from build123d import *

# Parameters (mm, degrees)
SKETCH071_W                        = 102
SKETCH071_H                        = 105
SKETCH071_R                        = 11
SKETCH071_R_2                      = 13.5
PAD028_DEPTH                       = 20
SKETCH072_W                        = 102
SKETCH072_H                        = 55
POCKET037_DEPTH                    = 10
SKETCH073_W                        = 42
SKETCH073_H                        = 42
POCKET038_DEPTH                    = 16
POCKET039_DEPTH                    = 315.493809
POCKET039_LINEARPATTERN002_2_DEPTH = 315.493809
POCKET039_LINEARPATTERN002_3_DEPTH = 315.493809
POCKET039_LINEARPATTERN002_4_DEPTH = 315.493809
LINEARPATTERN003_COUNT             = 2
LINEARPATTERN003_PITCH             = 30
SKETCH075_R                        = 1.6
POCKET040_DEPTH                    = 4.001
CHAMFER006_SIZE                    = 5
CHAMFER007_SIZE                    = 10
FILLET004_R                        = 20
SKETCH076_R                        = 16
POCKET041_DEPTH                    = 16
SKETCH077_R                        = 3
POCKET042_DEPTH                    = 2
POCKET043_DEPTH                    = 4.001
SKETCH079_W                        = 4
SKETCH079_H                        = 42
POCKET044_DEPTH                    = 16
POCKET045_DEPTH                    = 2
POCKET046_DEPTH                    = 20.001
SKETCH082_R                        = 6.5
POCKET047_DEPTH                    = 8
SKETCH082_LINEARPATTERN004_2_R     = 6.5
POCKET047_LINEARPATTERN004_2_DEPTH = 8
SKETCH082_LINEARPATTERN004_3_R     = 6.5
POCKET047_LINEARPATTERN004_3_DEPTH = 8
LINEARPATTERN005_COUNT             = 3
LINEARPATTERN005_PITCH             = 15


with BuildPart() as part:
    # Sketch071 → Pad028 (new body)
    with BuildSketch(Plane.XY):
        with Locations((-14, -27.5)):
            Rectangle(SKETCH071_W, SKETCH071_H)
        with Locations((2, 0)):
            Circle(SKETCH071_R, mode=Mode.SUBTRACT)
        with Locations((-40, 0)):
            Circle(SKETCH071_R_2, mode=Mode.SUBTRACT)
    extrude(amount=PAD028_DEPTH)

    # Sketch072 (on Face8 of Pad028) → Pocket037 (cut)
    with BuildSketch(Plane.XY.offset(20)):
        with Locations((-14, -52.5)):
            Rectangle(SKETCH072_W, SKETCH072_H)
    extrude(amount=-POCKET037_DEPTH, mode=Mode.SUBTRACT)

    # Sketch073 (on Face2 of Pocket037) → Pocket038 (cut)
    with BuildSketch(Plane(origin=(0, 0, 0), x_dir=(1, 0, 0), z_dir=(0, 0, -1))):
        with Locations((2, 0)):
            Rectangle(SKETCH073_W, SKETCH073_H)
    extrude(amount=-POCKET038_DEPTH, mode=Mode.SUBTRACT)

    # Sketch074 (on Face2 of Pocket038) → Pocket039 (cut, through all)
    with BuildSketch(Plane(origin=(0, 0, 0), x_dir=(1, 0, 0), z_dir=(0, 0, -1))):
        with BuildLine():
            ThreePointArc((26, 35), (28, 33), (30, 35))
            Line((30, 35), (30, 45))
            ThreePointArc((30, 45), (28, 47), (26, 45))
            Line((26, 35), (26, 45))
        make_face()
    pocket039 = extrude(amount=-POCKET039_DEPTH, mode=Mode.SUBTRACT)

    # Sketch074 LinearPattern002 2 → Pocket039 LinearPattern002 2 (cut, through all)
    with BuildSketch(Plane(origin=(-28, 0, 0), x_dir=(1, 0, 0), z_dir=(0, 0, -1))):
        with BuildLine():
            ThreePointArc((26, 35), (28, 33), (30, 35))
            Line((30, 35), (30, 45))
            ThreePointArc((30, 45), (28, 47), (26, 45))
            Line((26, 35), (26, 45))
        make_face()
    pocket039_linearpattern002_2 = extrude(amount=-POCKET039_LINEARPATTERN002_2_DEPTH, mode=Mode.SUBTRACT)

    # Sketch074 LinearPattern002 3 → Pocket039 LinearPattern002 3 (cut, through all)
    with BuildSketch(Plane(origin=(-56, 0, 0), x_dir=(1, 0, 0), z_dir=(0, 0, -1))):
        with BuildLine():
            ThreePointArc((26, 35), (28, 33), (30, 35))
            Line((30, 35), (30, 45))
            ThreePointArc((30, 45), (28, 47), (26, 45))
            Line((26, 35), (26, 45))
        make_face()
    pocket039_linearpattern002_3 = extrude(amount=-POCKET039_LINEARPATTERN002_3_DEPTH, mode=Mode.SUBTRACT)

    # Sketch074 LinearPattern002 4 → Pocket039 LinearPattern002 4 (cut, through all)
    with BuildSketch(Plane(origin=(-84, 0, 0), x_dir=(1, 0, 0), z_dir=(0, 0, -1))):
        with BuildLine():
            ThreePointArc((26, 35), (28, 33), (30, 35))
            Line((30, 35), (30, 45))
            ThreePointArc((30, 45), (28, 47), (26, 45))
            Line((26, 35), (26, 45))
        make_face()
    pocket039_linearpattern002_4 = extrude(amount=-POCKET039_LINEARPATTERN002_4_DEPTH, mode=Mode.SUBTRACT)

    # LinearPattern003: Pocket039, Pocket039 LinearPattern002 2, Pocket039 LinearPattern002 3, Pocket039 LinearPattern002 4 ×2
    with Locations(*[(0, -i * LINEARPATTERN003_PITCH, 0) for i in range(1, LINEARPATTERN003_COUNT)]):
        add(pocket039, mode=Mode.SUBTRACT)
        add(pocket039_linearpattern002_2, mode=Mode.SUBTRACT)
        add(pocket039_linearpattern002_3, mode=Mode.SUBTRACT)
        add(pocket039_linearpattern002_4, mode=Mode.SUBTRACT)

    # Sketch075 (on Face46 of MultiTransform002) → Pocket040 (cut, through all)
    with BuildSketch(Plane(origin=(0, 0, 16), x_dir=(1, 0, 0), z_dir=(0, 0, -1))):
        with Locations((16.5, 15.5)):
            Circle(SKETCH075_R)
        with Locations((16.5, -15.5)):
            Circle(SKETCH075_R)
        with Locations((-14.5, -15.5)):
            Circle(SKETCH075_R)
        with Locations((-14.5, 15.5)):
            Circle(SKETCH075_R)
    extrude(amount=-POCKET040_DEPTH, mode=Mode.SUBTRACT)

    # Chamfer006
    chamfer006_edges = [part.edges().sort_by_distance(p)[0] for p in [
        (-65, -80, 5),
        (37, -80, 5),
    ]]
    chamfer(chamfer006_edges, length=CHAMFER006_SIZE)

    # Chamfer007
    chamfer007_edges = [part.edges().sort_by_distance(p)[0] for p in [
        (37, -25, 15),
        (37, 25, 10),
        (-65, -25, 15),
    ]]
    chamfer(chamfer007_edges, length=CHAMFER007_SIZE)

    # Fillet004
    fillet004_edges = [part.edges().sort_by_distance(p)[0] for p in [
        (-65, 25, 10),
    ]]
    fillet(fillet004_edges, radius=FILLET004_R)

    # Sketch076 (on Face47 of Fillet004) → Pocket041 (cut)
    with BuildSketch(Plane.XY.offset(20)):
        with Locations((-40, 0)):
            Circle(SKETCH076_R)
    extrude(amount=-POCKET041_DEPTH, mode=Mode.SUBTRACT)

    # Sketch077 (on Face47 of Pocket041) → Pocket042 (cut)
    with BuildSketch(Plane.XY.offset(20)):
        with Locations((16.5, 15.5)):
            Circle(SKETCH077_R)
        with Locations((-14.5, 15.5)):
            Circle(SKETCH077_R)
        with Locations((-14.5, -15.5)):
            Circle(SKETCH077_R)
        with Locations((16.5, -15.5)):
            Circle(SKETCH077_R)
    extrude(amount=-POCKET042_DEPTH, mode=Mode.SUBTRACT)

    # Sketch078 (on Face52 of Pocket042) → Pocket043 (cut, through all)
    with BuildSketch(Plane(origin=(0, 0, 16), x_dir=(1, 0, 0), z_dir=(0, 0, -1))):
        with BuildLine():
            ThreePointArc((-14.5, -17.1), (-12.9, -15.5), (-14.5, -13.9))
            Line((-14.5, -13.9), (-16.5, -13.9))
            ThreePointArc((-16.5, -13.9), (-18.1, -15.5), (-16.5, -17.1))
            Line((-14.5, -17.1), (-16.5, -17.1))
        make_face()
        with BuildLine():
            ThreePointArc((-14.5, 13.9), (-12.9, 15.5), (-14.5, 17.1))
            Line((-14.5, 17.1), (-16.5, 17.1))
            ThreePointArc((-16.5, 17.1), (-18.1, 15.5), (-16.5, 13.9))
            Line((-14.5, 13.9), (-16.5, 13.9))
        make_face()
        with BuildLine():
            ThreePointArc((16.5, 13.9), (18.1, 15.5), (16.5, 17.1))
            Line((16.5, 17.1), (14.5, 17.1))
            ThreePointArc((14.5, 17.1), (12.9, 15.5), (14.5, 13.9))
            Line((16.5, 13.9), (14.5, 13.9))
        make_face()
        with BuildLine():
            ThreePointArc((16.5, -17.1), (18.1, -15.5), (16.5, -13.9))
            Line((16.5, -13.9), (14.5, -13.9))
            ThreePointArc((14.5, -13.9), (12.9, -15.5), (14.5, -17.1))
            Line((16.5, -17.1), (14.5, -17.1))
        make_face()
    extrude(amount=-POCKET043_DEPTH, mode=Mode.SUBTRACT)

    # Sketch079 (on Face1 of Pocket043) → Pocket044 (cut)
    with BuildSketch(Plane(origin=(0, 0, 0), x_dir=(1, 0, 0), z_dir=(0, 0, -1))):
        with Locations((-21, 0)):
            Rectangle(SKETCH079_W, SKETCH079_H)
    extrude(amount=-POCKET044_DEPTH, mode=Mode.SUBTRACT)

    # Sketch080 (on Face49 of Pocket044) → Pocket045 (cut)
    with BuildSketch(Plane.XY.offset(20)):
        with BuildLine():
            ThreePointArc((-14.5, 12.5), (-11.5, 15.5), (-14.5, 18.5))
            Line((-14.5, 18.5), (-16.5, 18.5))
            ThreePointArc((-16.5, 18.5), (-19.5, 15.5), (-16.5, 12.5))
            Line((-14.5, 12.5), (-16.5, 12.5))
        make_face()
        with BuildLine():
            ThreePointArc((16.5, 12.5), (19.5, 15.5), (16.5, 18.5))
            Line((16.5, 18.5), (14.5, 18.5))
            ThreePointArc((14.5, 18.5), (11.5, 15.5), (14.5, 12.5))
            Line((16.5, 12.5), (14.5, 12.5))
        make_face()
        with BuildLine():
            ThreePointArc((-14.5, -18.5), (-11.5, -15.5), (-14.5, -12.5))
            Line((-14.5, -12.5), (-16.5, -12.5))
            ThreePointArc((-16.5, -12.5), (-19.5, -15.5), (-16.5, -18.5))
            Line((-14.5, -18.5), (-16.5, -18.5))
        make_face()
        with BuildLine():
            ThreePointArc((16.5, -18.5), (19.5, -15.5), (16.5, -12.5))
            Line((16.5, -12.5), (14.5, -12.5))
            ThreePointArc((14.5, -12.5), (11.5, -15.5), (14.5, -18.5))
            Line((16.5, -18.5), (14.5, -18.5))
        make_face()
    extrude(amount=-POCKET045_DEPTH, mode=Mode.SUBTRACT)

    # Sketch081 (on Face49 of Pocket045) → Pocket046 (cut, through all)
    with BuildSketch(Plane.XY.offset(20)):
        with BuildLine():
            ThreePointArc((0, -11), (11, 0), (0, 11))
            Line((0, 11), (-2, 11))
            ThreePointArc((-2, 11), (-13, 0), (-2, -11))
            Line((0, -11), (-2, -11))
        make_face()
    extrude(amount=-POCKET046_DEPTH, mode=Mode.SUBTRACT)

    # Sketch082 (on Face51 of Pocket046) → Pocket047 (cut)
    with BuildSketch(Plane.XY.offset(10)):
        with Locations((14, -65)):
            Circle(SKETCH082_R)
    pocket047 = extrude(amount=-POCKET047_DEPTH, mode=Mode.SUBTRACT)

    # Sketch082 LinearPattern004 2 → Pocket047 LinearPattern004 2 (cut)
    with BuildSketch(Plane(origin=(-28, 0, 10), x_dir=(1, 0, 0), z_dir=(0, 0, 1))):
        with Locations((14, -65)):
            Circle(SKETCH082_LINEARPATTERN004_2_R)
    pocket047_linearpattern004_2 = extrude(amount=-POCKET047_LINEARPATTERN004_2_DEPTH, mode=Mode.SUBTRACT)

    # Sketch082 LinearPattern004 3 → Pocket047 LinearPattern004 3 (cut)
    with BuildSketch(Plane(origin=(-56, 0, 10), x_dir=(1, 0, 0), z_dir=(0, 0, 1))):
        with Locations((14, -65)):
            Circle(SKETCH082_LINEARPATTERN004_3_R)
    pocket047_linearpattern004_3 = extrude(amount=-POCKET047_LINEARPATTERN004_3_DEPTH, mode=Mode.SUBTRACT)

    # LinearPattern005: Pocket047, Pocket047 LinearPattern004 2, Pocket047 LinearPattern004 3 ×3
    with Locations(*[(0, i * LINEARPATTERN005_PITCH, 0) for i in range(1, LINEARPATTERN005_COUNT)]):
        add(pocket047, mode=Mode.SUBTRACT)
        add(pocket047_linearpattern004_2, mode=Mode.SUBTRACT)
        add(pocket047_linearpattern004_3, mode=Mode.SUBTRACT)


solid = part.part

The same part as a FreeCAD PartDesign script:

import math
import FreeCAD as App
import Part
import Sketcher
from FreeCAD import Vector
Q = App.Units.Quantity


def edges_at(feature, points):
    """Names of the edges that pass closest to the given points."""
    edges = feature.Shape.Edges
    near = lambda p: min(range(len(edges)), key=lambda i: edges[i].distToShape(Part.Vertex(*p))[0])
    return sorted({f"Edge{near(p) + 1}" for p in points})

doc = App.newDocument("Part")
body = doc.addObject("PartDesign::Body", "Body")

sketch1 = body.newObject("Sketcher::SketchObject", "Sketch")
sketch1.AttachmentSupport = (doc.getObject("XY_Plane"), [""])
sketch1.MapMode = "FlatFace"
sketch1.addGeometry(Part.LineSegment(Vector(-65, 25, 0), Vector(-65, -80, 0)), False)
sketch1.addGeometry(Part.LineSegment(Vector(-65, -80, 0), Vector(37, -80, 0)), False)
sketch1.addGeometry(Part.LineSegment(Vector(37, -80, 0), Vector(37, 25, 0)), False)
sketch1.addGeometry(Part.LineSegment(Vector(37, 25, 0), Vector(-65, 25, 0)), False)
sketch1.addGeometry(Part.Circle(Vector(-40, 0, 0), Vector(0, 0, 1), 13.5), False)
sketch1.addGeometry(Part.Circle(Vector(2, 0, 0), Vector(0, 0, 1), 11), False)
sketch1.addConstraint(Sketcher.Constraint("Coincident", 0, 2, 1, 1))
sketch1.addConstraint(Sketcher.Constraint("Coincident", 1, 2, 2, 1))
sketch1.addConstraint(Sketcher.Constraint("Coincident", 2, 2, 3, 1))
sketch1.addConstraint(Sketcher.Constraint("Coincident", 3, 2, 0, 1))
sketch1.addConstraint(Sketcher.Constraint("Vertical", 0))
sketch1.addConstraint(Sketcher.Constraint("Horizontal", 1))
sketch1.addConstraint(Sketcher.Constraint("Vertical", 2))
sketch1.addConstraint(Sketcher.Constraint("Horizontal", 3))
sketch1.addConstraint(Sketcher.Constraint("PointOnObject", 4, 3, -1))
sketch1.addConstraint(Sketcher.Constraint("PointOnObject", 5, 3, -1))
sketch1.addConstraint(Sketcher.Constraint("Diameter", 4, Q("27 mm")))
sketch1.addConstraint(Sketcher.Constraint("Diameter", 5, Q("22 mm")))
sketch1.addConstraint(Sketcher.Constraint("DistanceX", 1, 1, 1, 2, Q("102 mm")))
sketch1.addConstraint(Sketcher.Constraint("DistanceY", 0, 2, 0, 1, Q("105 mm")))
sketch1.addConstraint(Sketcher.Constraint("DistanceX", 4, 3, -1, 1, Q("40 mm")))
sketch1.addConstraint(Sketcher.Constraint("DistanceX", -1, 1, 5, 3, Q("2 mm")))
sketch1.addConstraint(Sketcher.Constraint("DistanceX", 0, 2, -1, 1, Q("65 mm")))
sketch1.addConstraint(Sketcher.Constraint("DistanceY", 0, 2, -1, 1, Q("80 mm")))
pad1 = body.newObject("PartDesign::Pad", "Pad")
pad1.Profile = sketch1
pad1.Length = 20

sketch2 = body.newObject("Sketcher::SketchObject", "Sketch001")
sketch2.AttachmentSupport = (doc.getObject("XY_Plane"), [""])
sketch2.MapMode = "FlatFace"
sketch2.AttachmentOffset = App.Placement(Vector(0, 0, 20), App.Rotation())
sketch2.addGeometry(Part.LineSegment(Vector(-65, -25, 0), Vector(-65, -80, 0)), False)
sketch2.addGeometry(Part.LineSegment(Vector(-65, -80, 0), Vector(37, -80, 0)), False)
sketch2.addGeometry(Part.LineSegment(Vector(37, -80, 0), Vector(37, -25, 0)), False)
sketch2.addGeometry(Part.LineSegment(Vector(37, -25, 0), Vector(-65, -25, 0)), False)
sketch2.addConstraint(Sketcher.Constraint("Coincident", 0, 2, 1, 1))
sketch2.addConstraint(Sketcher.Constraint("Coincident", 1, 2, 2, 1))
sketch2.addConstraint(Sketcher.Constraint("Coincident", 2, 2, 3, 1))
sketch2.addConstraint(Sketcher.Constraint("Coincident", 3, 2, 0, 1))
sketch2.addConstraint(Sketcher.Constraint("Vertical", 0))
sketch2.addConstraint(Sketcher.Constraint("Horizontal", 1))
sketch2.addConstraint(Sketcher.Constraint("Vertical", 2))
sketch2.addConstraint(Sketcher.Constraint("Horizontal", 3))
sketch2.addConstraint(Sketcher.Constraint("DistanceX", 1, 1, 1, 2, Q("102 mm")))
sketch2.addConstraint(Sketcher.Constraint("DistanceY", 0, 2, 0, 1, Q("55 mm")))
sketch2.addConstraint(Sketcher.Constraint("DistanceX", 0, 2, -1, 1, Q("65 mm")))
sketch2.addConstraint(Sketcher.Constraint("DistanceY", 0, 2, -1, 1, Q("80 mm")))
pocket1 = body.newObject("PartDesign::Pocket", "Pocket")
pocket1.Profile = sketch2
pocket1.Length = 10

sketch3 = body.newObject("Sketcher::SketchObject", "Sketch002")
sketch3.AttachmentSupport = (doc.getObject("XY_Plane"), [""])
sketch3.MapMode = "FlatFace"
sketch3.addGeometry(Part.LineSegment(Vector(-19, -21, 0), Vector(-19, 21, 0)), False)
sketch3.addGeometry(Part.LineSegment(Vector(-19, 21, 0), Vector(23, 21, 0)), False)
sketch3.addGeometry(Part.LineSegment(Vector(23, 21, 0), Vector(23, -21, 0)), False)
sketch3.addGeometry(Part.LineSegment(Vector(23, -21, 0), Vector(-19, -21, 0)), False)
sketch3.addConstraint(Sketcher.Constraint("Coincident", 0, 2, 1, 1))
sketch3.addConstraint(Sketcher.Constraint("Coincident", 1, 2, 2, 1))
sketch3.addConstraint(Sketcher.Constraint("Coincident", 2, 2, 3, 1))
sketch3.addConstraint(Sketcher.Constraint("Coincident", 3, 2, 0, 1))
sketch3.addConstraint(Sketcher.Constraint("Vertical", 0))
sketch3.addConstraint(Sketcher.Constraint("Horizontal", 1))
sketch3.addConstraint(Sketcher.Constraint("Vertical", 2))
sketch3.addConstraint(Sketcher.Constraint("Horizontal", 3))
sketch3.addConstraint(Sketcher.Constraint("Equal", 3, 0))
sketch3.addConstraint(Sketcher.Constraint("DistanceX", 1, 1, 1, 2, Q("42 mm")))
sketch3.addConstraint(Sketcher.Constraint("DistanceX", 0, 2, -1, 1, Q("19 mm")))
sketch3.addConstraint(Sketcher.Constraint("DistanceY", -1, 1, 0, 2, Q("21 mm")))
pocket2 = body.newObject("PartDesign::Pocket", "Pocket001")
pocket2.Profile = sketch3
pocket2.Length = 16
pocket2.Reversed = True

sketch4 = body.newObject("Sketcher::SketchObject", "Sketch003")
sketch4.AttachmentSupport = (doc.getObject("XY_Plane"), [""])
sketch4.MapMode = "FlatFace"
sketch4.addGeometry(Part.ArcOfCircle(Part.Circle(Vector(28, -35, 0), Vector(0, 0, 1), 2), math.radians(0), math.radians(180)), False)
sketch4.addGeometry(Part.LineSegment(Vector(30, -35, 0), Vector(30, -45, 0)), False)
sketch4.addGeometry(Part.ArcOfCircle(Part.Circle(Vector(28, -45, 0), Vector(0, 0, 1), 2), math.radians(180), math.radians(360)), False)
sketch4.addGeometry(Part.LineSegment(Vector(26, -45, 0), Vector(26, -35, 0)), False)
sketch4.addConstraint(Sketcher.Constraint("Tangent", 0, 1, 1, 1))
sketch4.addConstraint(Sketcher.Constraint("Tangent", 1, 2, 2, 2))
sketch4.addConstraint(Sketcher.Constraint("Tangent", 2, 1, 3, 1))
sketch4.addConstraint(Sketcher.Constraint("Tangent", 3, 2, 0, 2))
sketch4.addConstraint(Sketcher.Constraint("Vertical", 1))
sketch4.addConstraint(Sketcher.Constraint("Vertical", 3))
sketch4.addConstraint(Sketcher.Constraint("Radius", 0, Q("2 mm")))
sketch4.addConstraint(Sketcher.Constraint("DistanceY", 1, 2, 1, 1, Q("10 mm")))
sketch4.addConstraint(Sketcher.Constraint("DistanceX", -1, 1, 0, 3, Q("28 mm")))
sketch4.addConstraint(Sketcher.Constraint("DistanceY", 0, 3, -1, 1, Q("35 mm")))
pocket3 = body.newObject("PartDesign::Pocket", "Pocket002")
pocket3.Profile = sketch4
pocket3.Type = "ThroughAll"
pocket3.Reversed = True

sketch5 = body.newObject("Sketcher::SketchObject", "Sketch004")
sketch5.AttachmentSupport = (doc.getObject("XY_Plane"), [""])
sketch5.MapMode = "FlatFace"
sketch5.addGeometry(Part.ArcOfCircle(Part.Circle(Vector(0, -35, 0), Vector(0, 0, 1), 2), math.radians(0), math.radians(180)), False)
sketch5.addGeometry(Part.LineSegment(Vector(2, -35, 0), Vector(2, -45, 0)), False)
sketch5.addGeometry(Part.ArcOfCircle(Part.Circle(Vector(0, -45, 0), Vector(0, 0, 1), 2), math.radians(180), math.radians(360)), False)
sketch5.addGeometry(Part.LineSegment(Vector(-2, -45, 0), Vector(-2, -35, 0)), False)
sketch5.addConstraint(Sketcher.Constraint("Tangent", 0, 1, 1, 1))
sketch5.addConstraint(Sketcher.Constraint("Tangent", 1, 2, 2, 2))
sketch5.addConstraint(Sketcher.Constraint("Tangent", 2, 1, 3, 1))
sketch5.addConstraint(Sketcher.Constraint("Tangent", 3, 2, 0, 2))
sketch5.addConstraint(Sketcher.Constraint("Vertical", 1))
sketch5.addConstraint(Sketcher.Constraint("Vertical", 3))
sketch5.addConstraint(Sketcher.Constraint("PointOnObject", 0, 3, -2))
sketch5.addConstraint(Sketcher.Constraint("Radius", 0, Q("2 mm")))
sketch5.addConstraint(Sketcher.Constraint("DistanceY", 1, 2, 1, 1, Q("10 mm")))
sketch5.addConstraint(Sketcher.Constraint("DistanceY", 0, 3, -1, 1, Q("35 mm")))
pocket4 = body.newObject("PartDesign::Pocket", "Pocket003")
pocket4.Profile = sketch5
pocket4.Type = "ThroughAll"
pocket4.Reversed = True

sketch6 = body.newObject("Sketcher::SketchObject", "Sketch005")
sketch6.AttachmentSupport = (doc.getObject("XY_Plane"), [""])
sketch6.MapMode = "FlatFace"
sketch6.addGeometry(Part.ArcOfCircle(Part.Circle(Vector(-28, -35, 0), Vector(0, 0, 1), 2), math.radians(0), math.radians(180)), False)
sketch6.addGeometry(Part.LineSegment(Vector(-26, -35, 0), Vector(-26, -45, 0)), False)
sketch6.addGeometry(Part.ArcOfCircle(Part.Circle(Vector(-28, -45, 0), Vector(0, 0, 1), 2), math.radians(180), math.radians(360)), False)
sketch6.addGeometry(Part.LineSegment(Vector(-30, -45, 0), Vector(-30, -35, 0)), False)
sketch6.addConstraint(Sketcher.Constraint("Tangent", 0, 1, 1, 1))
sketch6.addConstraint(Sketcher.Constraint("Tangent", 1, 2, 2, 2))
sketch6.addConstraint(Sketcher.Constraint("Tangent", 2, 1, 3, 1))
sketch6.addConstraint(Sketcher.Constraint("Tangent", 3, 2, 0, 2))
sketch6.addConstraint(Sketcher.Constraint("Vertical", 1))
sketch6.addConstraint(Sketcher.Constraint("Vertical", 3))
sketch6.addConstraint(Sketcher.Constraint("Radius", 0, Q("2 mm")))
sketch6.addConstraint(Sketcher.Constraint("DistanceY", 1, 2, 1, 1, Q("10 mm")))
sketch6.addConstraint(Sketcher.Constraint("DistanceX", 0, 3, -1, 1, Q("28 mm")))
sketch6.addConstraint(Sketcher.Constraint("DistanceY", 0, 3, -1, 1, Q("35 mm")))
pocket5 = body.newObject("PartDesign::Pocket", "Pocket004")
pocket5.Profile = sketch6
pocket5.Type = "ThroughAll"
pocket5.Reversed = True

sketch7 = body.newObject("Sketcher::SketchObject", "Sketch006")
sketch7.AttachmentSupport = (doc.getObject("XY_Plane"), [""])
sketch7.MapMode = "FlatFace"
sketch7.addGeometry(Part.ArcOfCircle(Part.Circle(Vector(-56, -35, 0), Vector(0, 0, 1), 2), math.radians(0), math.radians(180)), False)
sketch7.addGeometry(Part.LineSegment(Vector(-54, -35, 0), Vector(-54, -45, 0)), False)
sketch7.addGeometry(Part.ArcOfCircle(Part.Circle(Vector(-56, -45, 0), Vector(0, 0, 1), 2), math.radians(180), math.radians(360)), False)
sketch7.addGeometry(Part.LineSegment(Vector(-58, -45, 0), Vector(-58, -35, 0)), False)
sketch7.addConstraint(Sketcher.Constraint("Tangent", 0, 1, 1, 1))
sketch7.addConstraint(Sketcher.Constraint("Tangent", 1, 2, 2, 2))
sketch7.addConstraint(Sketcher.Constraint("Tangent", 2, 1, 3, 1))
sketch7.addConstraint(Sketcher.Constraint("Tangent", 3, 2, 0, 2))
sketch7.addConstraint(Sketcher.Constraint("Vertical", 1))
sketch7.addConstraint(Sketcher.Constraint("Vertical", 3))
sketch7.addConstraint(Sketcher.Constraint("Radius", 0, Q("2 mm")))
sketch7.addConstraint(Sketcher.Constraint("DistanceY", 1, 2, 1, 1, Q("10 mm")))
sketch7.addConstraint(Sketcher.Constraint("DistanceX", 0, 3, -1, 1, Q("56 mm")))
sketch7.addConstraint(Sketcher.Constraint("DistanceY", 0, 3, -1, 1, Q("35 mm")))
pocket6 = body.newObject("PartDesign::Pocket", "Pocket005")
pocket6.Profile = sketch7
pocket6.Type = "ThroughAll"
pocket6.Reversed = True
doc.recompute()

linearpattern = body.newObject("PartDesign::LinearPattern", "LinearPattern")
linearpattern.Originals = [pocket3, pocket4, pocket5, pocket6]
linearpattern.Direction = (doc.getObject("Y_Axis"), [""])
linearpattern.Mode = "offset"
linearpattern.Offset = 30
linearpattern.Occurrences = 2
linearpattern.Reversed = True
body.Tip = linearpattern

sketch8 = body.newObject("Sketcher::SketchObject", "Sketch007")
sketch8.AttachmentSupport = (doc.getObject("XY_Plane"), [""])
sketch8.MapMode = "FlatFace"
sketch8.AttachmentOffset = App.Placement(Vector(0, 0, 16), App.Rotation())
sketch8.addGeometry(Part.Circle(Vector(16.5, -15.5, 0), Vector(0, 0, 1), 1.6), False)
sketch8.addGeometry(Part.Circle(Vector(16.5, 15.5, 0), Vector(0, 0, 1), 1.6), False)
sketch8.addGeometry(Part.Circle(Vector(-14.5, 15.5, 0), Vector(0, 0, 1), 1.6), False)
sketch8.addGeometry(Part.Circle(Vector(-14.5, -15.5, 0), Vector(0, 0, 1), 1.6), False)
sketch8.addConstraint(Sketcher.Constraint("Equal", 0, 1))
sketch8.addConstraint(Sketcher.Constraint("Equal", 1, 2))
sketch8.addConstraint(Sketcher.Constraint("Equal", 2, 3))
sketch8.addConstraint(Sketcher.Constraint("Symmetric", 0, 3, 1, 3, -1))
sketch8.addConstraint(Sketcher.Constraint("Symmetric", 2, 3, 3, 3, -1))
sketch8.addConstraint(Sketcher.Constraint("Horizontal", 1, 3, 2, 3))
sketch8.addConstraint(Sketcher.Constraint("Diameter", 0, Q("3.2 mm")))
sketch8.addConstraint(Sketcher.Constraint("DistanceY", 0, 3, 1, 3, Q("31 mm")))
sketch8.addConstraint(Sketcher.Constraint("DistanceX", 2, 3, 1, 3, Q("31 mm")))
sketch8.addConstraint(Sketcher.Constraint("DistanceX", -1, 1, 0, 3, Q("16.5 mm")))
pocket7 = body.newObject("PartDesign::Pocket", "Pocket006")
pocket7.Profile = sketch8
pocket7.Type = "ThroughAll"
pocket7.Reversed = True
doc.recompute()

chamfer = body.newObject("PartDesign::Chamfer", "Chamfer")
chamfer.Base = (pocket7, edges_at(pocket7, [(-65, -80, 5), (37, -80, 5)]))
chamfer.Size = 5
doc.recompute()

chamfer2 = body.newObject("PartDesign::Chamfer", "Chamfer001")
chamfer2.Base = (chamfer, edges_at(chamfer, [(37, -25, 15), (37, 25, 10), (-65, -25, 15)]))
chamfer2.Size = 10
doc.recompute()

fillet = body.newObject("PartDesign::Fillet", "Fillet")
fillet.Base = (chamfer2, edges_at(chamfer2, [(-65, 25, 10)]))
fillet.Radius = 20

sketch9 = body.newObject("Sketcher::SketchObject", "Sketch008")
sketch9.AttachmentSupport = (doc.getObject("XY_Plane"), [""])
sketch9.MapMode = "FlatFace"
sketch9.AttachmentOffset = App.Placement(Vector(0, 0, 20), App.Rotation())
sketch9.addGeometry(Part.Circle(Vector(-40, 0, 0), Vector(0, 0, 1), 16), False)
sketch9.addConstraint(Sketcher.Constraint("PointOnObject", 0, 3, -1))
sketch9.addConstraint(Sketcher.Constraint("Diameter", 0, Q("32 mm")))
sketch9.addConstraint(Sketcher.Constraint("DistanceX", 0, 3, -1, 1, Q("40 mm")))
pocket8 = body.newObject("PartDesign::Pocket", "Pocket007")
pocket8.Profile = sketch9
pocket8.Length = 16

sketch10 = body.newObject("Sketcher::SketchObject", "Sketch009")
sketch10.AttachmentSupport = (doc.getObject("XY_Plane"), [""])
sketch10.MapMode = "FlatFace"
sketch10.AttachmentOffset = App.Placement(Vector(0, 0, 20), App.Rotation())
sketch10.addGeometry(Part.Circle(Vector(16.5, 15.5, 0), Vector(0, 0, 1), 3), False)
sketch10.addGeometry(Part.Circle(Vector(-14.5, 15.5, 0), Vector(0, 0, 1), 3), False)
sketch10.addGeometry(Part.Circle(Vector(-14.5, -15.5, 0), Vector(0, 0, 1), 3), False)
sketch10.addGeometry(Part.Circle(Vector(16.5, -15.5, 0), Vector(0, 0, 1), 3), False)
sketch10.addConstraint(Sketcher.Constraint("Equal", 0, 1))
sketch10.addConstraint(Sketcher.Constraint("Equal", 1, 2))
sketch10.addConstraint(Sketcher.Constraint("Equal", 2, 3))
sketch10.addConstraint(Sketcher.Constraint("Symmetric", 1, 3, 2, 3, -1))
sketch10.addConstraint(Sketcher.Constraint("Symmetric", 0, 3, 3, 3, -1))
sketch10.addConstraint(Sketcher.Constraint("Horizontal", 0, 3, 1, 3))
sketch10.addConstraint(Sketcher.Constraint("Diameter", 0, Q("6 mm")))
sketch10.addConstraint(Sketcher.Constraint("DistanceX", 1, 3, 0, 3, Q("31 mm")))
sketch10.addConstraint(Sketcher.Constraint("DistanceY", 2, 3, 1, 3, Q("31 mm")))
sketch10.addConstraint(Sketcher.Constraint("DistanceX", -1, 1, 0, 3, Q("16.5 mm")))
pocket9 = body.newObject("PartDesign::Pocket", "Pocket008")
pocket9.Profile = sketch10
pocket9.Length = 2

sketch11 = body.newObject("Sketcher::SketchObject", "Sketch010")
sketch11.AttachmentSupport = (doc.getObject("XY_Plane"), [""])
sketch11.MapMode = "FlatFace"
sketch11.AttachmentOffset = App.Placement(Vector(0, 0, 16), App.Rotation())
sketch11.addGeometry(Part.ArcOfCircle(Part.Circle(Vector(-14.5, 15.5, 0), Vector(0, 0, 1), 1.6), math.radians(-90), math.radians(90)), False)
sketch11.addGeometry(Part.LineSegment(Vector(-14.5, 13.9, 0), Vector(-16.5, 13.9, 0)), False)
sketch11.addGeometry(Part.ArcOfCircle(Part.Circle(Vector(-16.5, 15.5, 0), Vector(0, 0, 1), 1.6), math.radians(90), math.radians(270)), False)
sketch11.addGeometry(Part.LineSegment(Vector(-16.5, 17.1, 0), Vector(-14.5, 17.1, 0)), False)
sketch11.addGeometry(Part.ArcOfCircle(Part.Circle(Vector(-14.5, -15.5, 0), Vector(0, 0, 1), 1.6), math.radians(-90), math.radians(90)), False)
sketch11.addGeometry(Part.LineSegment(Vector(-14.5, -17.1, 0), Vector(-16.5, -17.1, 0)), False)
sketch11.addGeometry(Part.ArcOfCircle(Part.Circle(Vector(-16.5, -15.5, 0), Vector(0, 0, 1), 1.6), math.radians(90), math.radians(270)), False)
sketch11.addGeometry(Part.LineSegment(Vector(-16.5, -13.9, 0), Vector(-14.5, -13.9, 0)), False)
sketch11.addGeometry(Part.ArcOfCircle(Part.Circle(Vector(16.5, -15.5, 0), Vector(0, 0, 1), 1.6), math.radians(-90), math.radians(90)), False)
sketch11.addGeometry(Part.LineSegment(Vector(16.5, -17.1, 0), Vector(14.5, -17.1, 0)), False)
sketch11.addGeometry(Part.ArcOfCircle(Part.Circle(Vector(14.5, -15.5, 0), Vector(0, 0, 1), 1.6), math.radians(90), math.radians(270)), False)
sketch11.addGeometry(Part.LineSegment(Vector(14.5, -13.9, 0), Vector(16.5, -13.9, 0)), False)
sketch11.addGeometry(Part.ArcOfCircle(Part.Circle(Vector(16.5, 15.5, 0), Vector(0, 0, 1), 1.6), math.radians(-90), math.radians(90)), False)
sketch11.addGeometry(Part.LineSegment(Vector(16.5, 13.9, 0), Vector(14.5, 13.9, 0)), False)
sketch11.addGeometry(Part.ArcOfCircle(Part.Circle(Vector(14.5, 15.5, 0), Vector(0, 0, 1), 1.6), math.radians(90), math.radians(270)), False)
sketch11.addGeometry(Part.LineSegment(Vector(14.5, 17.1, 0), Vector(16.5, 17.1, 0)), False)
sketch11.addConstraint(Sketcher.Constraint("Tangent", 0, 1, 1, 1))
sketch11.addConstraint(Sketcher.Constraint("Tangent", 1, 2, 2, 2))
sketch11.addConstraint(Sketcher.Constraint("Tangent", 2, 1, 3, 1))
sketch11.addConstraint(Sketcher.Constraint("Tangent", 3, 2, 0, 2))
sketch11.addConstraint(Sketcher.Constraint("Tangent", 4, 1, 5, 1))
sketch11.addConstraint(Sketcher.Constraint("Tangent", 5, 2, 6, 2))
sketch11.addConstraint(Sketcher.Constraint("Tangent", 6, 1, 7, 1))
sketch11.addConstraint(Sketcher.Constraint("Tangent", 7, 2, 4, 2))
sketch11.addConstraint(Sketcher.Constraint("Tangent", 8, 1, 9, 1))
sketch11.addConstraint(Sketcher.Constraint("Tangent", 9, 2, 10, 2))
sketch11.addConstraint(Sketcher.Constraint("Tangent", 10, 1, 11, 1))
sketch11.addConstraint(Sketcher.Constraint("Tangent", 11, 2, 8, 2))
sketch11.addConstraint(Sketcher.Constraint("Tangent", 12, 1, 13, 1))
sketch11.addConstraint(Sketcher.Constraint("Tangent", 13, 2, 14, 2))
sketch11.addConstraint(Sketcher.Constraint("Tangent", 14, 1, 15, 1))
sketch11.addConstraint(Sketcher.Constraint("Tangent", 15, 2, 12, 2))
sketch11.addConstraint(Sketcher.Constraint("Horizontal", 1))
sketch11.addConstraint(Sketcher.Constraint("Horizontal", 3))
sketch11.addConstraint(Sketcher.Constraint("Horizontal", 5))
sketch11.addConstraint(Sketcher.Constraint("Horizontal", 7))
sketch11.addConstraint(Sketcher.Constraint("Horizontal", 9))
sketch11.addConstraint(Sketcher.Constraint("Horizontal", 11))
sketch11.addConstraint(Sketcher.Constraint("Horizontal", 13))
sketch11.addConstraint(Sketcher.Constraint("Horizontal", 15))
sketch11.addConstraint(Sketcher.Constraint("Equal", 2, 4))
sketch11.addConstraint(Sketcher.Constraint("Equal", 6, 8))
sketch11.addConstraint(Sketcher.Constraint("Equal", 10, 12))
sketch11.addConstraint(Sketcher.Constraint("Symmetric", 2, 3, 8, 3, -1, 1))
sketch11.addConstraint(Sketcher.Constraint("Symmetric", 6, 3, 12, 3, -1, 1))
sketch11.addConstraint(Sketcher.Constraint("Symmetric", 6, 3, 8, 3, -2))
sketch11.addConstraint(Sketcher.Constraint("Vertical", 0, 3, 4, 3))
sketch11.addConstraint(Sketcher.Constraint("Vertical", 10, 3, 14, 3))
sketch11.addConstraint(Sketcher.Constraint("Equal", 7, 9))
sketch11.addConstraint(Sketcher.Constraint("Radius", 0, Q("1.6 mm")))
sketch11.addConstraint(Sketcher.Constraint("DistanceX", 1, 2, 1, 1, Q("2 mm")))
sketch11.addConstraint(Sketcher.Constraint("DistanceY", 4, 3, 0, 3, Q("31 mm")))
sketch11.addConstraint(Sketcher.Constraint("DistanceX", 4, 3, 8, 3, Q("31 mm")))
pocket10 = body.newObject("PartDesign::Pocket", "Pocket009")
pocket10.Profile = sketch11
pocket10.Type = "ThroughAll"
pocket10.Reversed = True

sketch12 = body.newObject("Sketcher::SketchObject", "Sketch011")
sketch12.AttachmentSupport = (doc.getObject("XY_Plane"), [""])
sketch12.MapMode = "FlatFace"
sketch12.addGeometry(Part.LineSegment(Vector(-23, -21, 0), Vector(-23, 21, 0)), False)
sketch12.addGeometry(Part.LineSegment(Vector(-23, 21, 0), Vector(-19, 21, 0)), False)
sketch12.addGeometry(Part.LineSegment(Vector(-19, 21, 0), Vector(-19, -21, 0)), False)
sketch12.addGeometry(Part.LineSegment(Vector(-19, -21, 0), Vector(-23, -21, 0)), False)
sketch12.addConstraint(Sketcher.Constraint("Coincident", 0, 2, 1, 1))
sketch12.addConstraint(Sketcher.Constraint("Coincident", 1, 2, 2, 1))
sketch12.addConstraint(Sketcher.Constraint("Coincident", 2, 2, 3, 1))
sketch12.addConstraint(Sketcher.Constraint("Coincident", 3, 2, 0, 1))
sketch12.addConstraint(Sketcher.Constraint("Vertical", 0))
sketch12.addConstraint(Sketcher.Constraint("Horizontal", 1))
sketch12.addConstraint(Sketcher.Constraint("Vertical", 2))
sketch12.addConstraint(Sketcher.Constraint("Horizontal", 3))
sketch12.addConstraint(Sketcher.Constraint("DistanceX", 1, 1, 1, 2, Q("4 mm")))
sketch12.addConstraint(Sketcher.Constraint("DistanceY", 0, 1, 0, 2, Q("42 mm")))
sketch12.addConstraint(Sketcher.Constraint("DistanceX", 0, 2, -1, 1, Q("23 mm")))
sketch12.addConstraint(Sketcher.Constraint("DistanceY", -1, 1, 0, 2, Q("21 mm")))
pocket11 = body.newObject("PartDesign::Pocket", "Pocket010")
pocket11.Profile = sketch12
pocket11.Length = 16
pocket11.Reversed = True

sketch13 = body.newObject("Sketcher::SketchObject", "Sketch012")
sketch13.AttachmentSupport = (doc.getObject("XY_Plane"), [""])
sketch13.MapMode = "FlatFace"
sketch13.AttachmentOffset = App.Placement(Vector(0, 0, 20), App.Rotation())
sketch13.addGeometry(Part.ArcOfCircle(Part.Circle(Vector(-14.5, 15.5, 0), Vector(0, 0, 1), 3), math.radians(-90), math.radians(90)), False)
sketch13.addGeometry(Part.LineSegment(Vector(-14.5, 18.5, 0), Vector(-16.5, 18.5, 0)), False)
sketch13.addGeometry(Part.ArcOfCircle(Part.Circle(Vector(-16.5, 15.5, 0), Vector(0, 0, 1), 3), math.radians(90), math.radians(270)), False)
sketch13.addGeometry(Part.LineSegment(Vector(-16.5, 12.5, 0), Vector(-14.5, 12.5, 0)), False)
sketch13.addGeometry(Part.ArcOfCircle(Part.Circle(Vector(16.5, 15.5, 0), Vector(0, 0, 1), 3), math.radians(-90), math.radians(90)), False)
sketch13.addGeometry(Part.LineSegment(Vector(16.5, 18.5, 0), Vector(14.5, 18.5, 0)), False)
sketch13.addGeometry(Part.ArcOfCircle(Part.Circle(Vector(14.5, 15.5, 0), Vector(0, 0, 1), 3), math.radians(90), math.radians(270)), False)
sketch13.addGeometry(Part.LineSegment(Vector(14.5, 12.5, 0), Vector(16.5, 12.5, 0)), False)
sketch13.addGeometry(Part.ArcOfCircle(Part.Circle(Vector(-14.5, -15.5, 0), Vector(0, 0, 1), 3), math.radians(-90), math.radians(90)), False)
sketch13.addGeometry(Part.LineSegment(Vector(-14.5, -12.5, 0), Vector(-16.5, -12.5, 0)), False)
sketch13.addGeometry(Part.ArcOfCircle(Part.Circle(Vector(-16.5, -15.5, 0), Vector(0, 0, 1), 3), math.radians(90), math.radians(270)), False)
sketch13.addGeometry(Part.LineSegment(Vector(-16.5, -18.5, 0), Vector(-14.5, -18.5, 0)), False)
sketch13.addGeometry(Part.ArcOfCircle(Part.Circle(Vector(16.5, -15.5, 0), Vector(0, 0, 1), 3), math.radians(-90), math.radians(90)), False)
sketch13.addGeometry(Part.LineSegment(Vector(16.5, -12.5, 0), Vector(14.5, -12.5, 0)), False)
sketch13.addGeometry(Part.ArcOfCircle(Part.Circle(Vector(14.5, -15.5, 0), Vector(0, 0, 1), 3), math.radians(90), math.radians(270)), False)
sketch13.addGeometry(Part.LineSegment(Vector(14.5, -18.5, 0), Vector(16.5, -18.5, 0)), False)
sketch13.addConstraint(Sketcher.Constraint("Tangent", 0, 2, 1, 1))
sketch13.addConstraint(Sketcher.Constraint("Tangent", 1, 2, 2, 1))
sketch13.addConstraint(Sketcher.Constraint("Tangent", 2, 2, 3, 1))
sketch13.addConstraint(Sketcher.Constraint("Tangent", 3, 2, 0, 1))
sketch13.addConstraint(Sketcher.Constraint("Tangent", 4, 2, 5, 1))
sketch13.addConstraint(Sketcher.Constraint("Tangent", 5, 2, 6, 1))
sketch13.addConstraint(Sketcher.Constraint("Tangent", 6, 2, 7, 1))
sketch13.addConstraint(Sketcher.Constraint("Tangent", 7, 2, 4, 1))
sketch13.addConstraint(Sketcher.Constraint("Tangent", 8, 2, 9, 1))
sketch13.addConstraint(Sketcher.Constraint("Tangent", 9, 2, 10, 1))
sketch13.addConstraint(Sketcher.Constraint("Tangent", 10, 2, 11, 1))
sketch13.addConstraint(Sketcher.Constraint("Tangent", 11, 2, 8, 1))
sketch13.addConstraint(Sketcher.Constraint("Tangent", 12, 2, 13, 1))
sketch13.addConstraint(Sketcher.Constraint("Tangent", 13, 2, 14, 1))
sketch13.addConstraint(Sketcher.Constraint("Tangent", 14, 2, 15, 1))
sketch13.addConstraint(Sketcher.Constraint("Tangent", 15, 2, 12, 1))
sketch13.addConstraint(Sketcher.Constraint("Horizontal", 1))
sketch13.addConstraint(Sketcher.Constraint("Horizontal", 3))
sketch13.addConstraint(Sketcher.Constraint("Horizontal", 5))
sketch13.addConstraint(Sketcher.Constraint("Horizontal", 7))
sketch13.addConstraint(Sketcher.Constraint("Horizontal", 9))
sketch13.addConstraint(Sketcher.Constraint("Horizontal", 11))
sketch13.addConstraint(Sketcher.Constraint("Horizontal", 13))
sketch13.addConstraint(Sketcher.Constraint("Horizontal", 15))
sketch13.addConstraint(Sketcher.Constraint("Equal", 2, 4))
sketch13.addConstraint(Sketcher.Constraint("Equal", 6, 8))
sketch13.addConstraint(Sketcher.Constraint("Equal", 10, 12))
sketch13.addConstraint(Sketcher.Constraint("Symmetric", 6, 3, 8, 3, -1, 1))
sketch13.addConstraint(Sketcher.Constraint("Symmetric", 2, 3, 12, 3, -1, 1))
sketch13.addConstraint(Sketcher.Constraint("Symmetric", 2, 3, 4, 3, -2))
sketch13.addConstraint(Sketcher.Constraint("Vertical", 0, 3, 8, 3))
sketch13.addConstraint(Sketcher.Constraint("Vertical", 2, 3, 10, 3))
sketch13.addConstraint(Sketcher.Constraint("Vertical", 6, 3, 14, 3))
sketch13.addConstraint(Sketcher.Constraint("Radius", 0, Q("3 mm")))
sketch13.addConstraint(Sketcher.Constraint("DistanceX", 1, 2, 1, 1, Q("2 mm")))
sketch13.addConstraint(Sketcher.Constraint("DistanceX", 0, 3, 4, 3, Q("31 mm")))
sketch13.addConstraint(Sketcher.Constraint("DistanceY", 8, 3, 0, 3, Q("31 mm")))
pocket12 = body.newObject("PartDesign::Pocket", "Pocket011")
pocket12.Profile = sketch13
pocket12.Length = 2

sketch14 = body.newObject("Sketcher::SketchObject", "Sketch013")
sketch14.AttachmentSupport = (doc.getObject("XY_Plane"), [""])
sketch14.MapMode = "FlatFace"
sketch14.AttachmentOffset = App.Placement(Vector(0, 0, 20), App.Rotation())
sketch14.addGeometry(Part.ArcOfCircle(Part.Circle(Vector(0, 0, 0), Vector(0, 0, 1), 11), math.radians(-90), math.radians(90)), False)
sketch14.addGeometry(Part.LineSegment(Vector(0, 11, 0), Vector(-2, 11, 0)), False)
sketch14.addGeometry(Part.ArcOfCircle(Part.Circle(Vector(-2, 0, 0), Vector(0, 0, 1), 11), math.radians(90), math.radians(270)), False)
sketch14.addGeometry(Part.LineSegment(Vector(-2, -11, 0), Vector(0, -11, 0)), False)
sketch14.addConstraint(Sketcher.Constraint("Tangent", 0, 2, 1, 1))
sketch14.addConstraint(Sketcher.Constraint("Tangent", 1, 2, 2, 1))
sketch14.addConstraint(Sketcher.Constraint("Tangent", 2, 2, 3, 1))
sketch14.addConstraint(Sketcher.Constraint("Tangent", 3, 2, 0, 1))
sketch14.addConstraint(Sketcher.Constraint("Horizontal", 1))
sketch14.addConstraint(Sketcher.Constraint("Horizontal", 3))
sketch14.addConstraint(Sketcher.Constraint("Coincident", 0, 3, -1, 1))
sketch14.addConstraint(Sketcher.Constraint("Radius", 0, Q("11 mm")))
sketch14.addConstraint(Sketcher.Constraint("DistanceX", 1, 2, 1, 1, Q("2 mm")))
pocket13 = body.newObject("PartDesign::Pocket", "Pocket012")
pocket13.Profile = sketch14
pocket13.Type = "ThroughAll"

sketch15 = body.newObject("Sketcher::SketchObject", "Sketch014")
sketch15.AttachmentSupport = (doc.getObject("XY_Plane"), [""])
sketch15.MapMode = "FlatFace"
sketch15.AttachmentOffset = App.Placement(Vector(0, 0, 10), App.Rotation())
sketch15.addGeometry(Part.Circle(Vector(14, -65, 0), Vector(0, 0, 1), 6.5), False)
sketch15.addConstraint(Sketcher.Constraint("Diameter", 0, Q("13 mm")))
sketch15.addConstraint(Sketcher.Constraint("DistanceX", -1, 1, 0, 3, Q("14 mm")))
sketch15.addConstraint(Sketcher.Constraint("DistanceY", 0, 3, -1, 1, Q("65 mm")))
pocket14 = body.newObject("PartDesign::Pocket", "Pocket013")
pocket14.Profile = sketch15
pocket14.Length = 8

sketch16 = body.newObject("Sketcher::SketchObject", "Sketch015")
sketch16.AttachmentSupport = (doc.getObject("XY_Plane"), [""])
sketch16.MapMode = "FlatFace"
sketch16.AttachmentOffset = App.Placement(Vector(0, 0, 10), App.Rotation())
sketch16.addGeometry(Part.Circle(Vector(-14, -65, 0), Vector(0, 0, 1), 6.5), False)
sketch16.addConstraint(Sketcher.Constraint("Diameter", 0, Q("13 mm")))
sketch16.addConstraint(Sketcher.Constraint("DistanceX", 0, 3, -1, 1, Q("14 mm")))
sketch16.addConstraint(Sketcher.Constraint("DistanceY", 0, 3, -1, 1, Q("65 mm")))
pocket15 = body.newObject("PartDesign::Pocket", "Pocket014")
pocket15.Profile = sketch16
pocket15.Length = 8

sketch17 = body.newObject("Sketcher::SketchObject", "Sketch016")
sketch17.AttachmentSupport = (doc.getObject("XY_Plane"), [""])
sketch17.MapMode = "FlatFace"
sketch17.AttachmentOffset = App.Placement(Vector(0, 0, 10), App.Rotation())
sketch17.addGeometry(Part.Circle(Vector(-42, -65, 0), Vector(0, 0, 1), 6.5), False)
sketch17.addConstraint(Sketcher.Constraint("Diameter", 0, Q("13 mm")))
sketch17.addConstraint(Sketcher.Constraint("DistanceX", 0, 3, -1, 1, Q("42 mm")))
sketch17.addConstraint(Sketcher.Constraint("DistanceY", 0, 3, -1, 1, Q("65 mm")))
pocket16 = body.newObject("PartDesign::Pocket", "Pocket015")
pocket16.Profile = sketch17
pocket16.Length = 8
doc.recompute()

linearpattern2 = body.newObject("PartDesign::LinearPattern", "LinearPattern001")
linearpattern2.Originals = [pocket14, pocket15, pocket16]
linearpattern2.Direction = (doc.getObject("Y_Axis"), [""])
linearpattern2.Mode = "offset"
linearpattern2.Offset = 15
linearpattern2.Occurrences = 3
body.Tip = linearpattern2

doc.recompute()
